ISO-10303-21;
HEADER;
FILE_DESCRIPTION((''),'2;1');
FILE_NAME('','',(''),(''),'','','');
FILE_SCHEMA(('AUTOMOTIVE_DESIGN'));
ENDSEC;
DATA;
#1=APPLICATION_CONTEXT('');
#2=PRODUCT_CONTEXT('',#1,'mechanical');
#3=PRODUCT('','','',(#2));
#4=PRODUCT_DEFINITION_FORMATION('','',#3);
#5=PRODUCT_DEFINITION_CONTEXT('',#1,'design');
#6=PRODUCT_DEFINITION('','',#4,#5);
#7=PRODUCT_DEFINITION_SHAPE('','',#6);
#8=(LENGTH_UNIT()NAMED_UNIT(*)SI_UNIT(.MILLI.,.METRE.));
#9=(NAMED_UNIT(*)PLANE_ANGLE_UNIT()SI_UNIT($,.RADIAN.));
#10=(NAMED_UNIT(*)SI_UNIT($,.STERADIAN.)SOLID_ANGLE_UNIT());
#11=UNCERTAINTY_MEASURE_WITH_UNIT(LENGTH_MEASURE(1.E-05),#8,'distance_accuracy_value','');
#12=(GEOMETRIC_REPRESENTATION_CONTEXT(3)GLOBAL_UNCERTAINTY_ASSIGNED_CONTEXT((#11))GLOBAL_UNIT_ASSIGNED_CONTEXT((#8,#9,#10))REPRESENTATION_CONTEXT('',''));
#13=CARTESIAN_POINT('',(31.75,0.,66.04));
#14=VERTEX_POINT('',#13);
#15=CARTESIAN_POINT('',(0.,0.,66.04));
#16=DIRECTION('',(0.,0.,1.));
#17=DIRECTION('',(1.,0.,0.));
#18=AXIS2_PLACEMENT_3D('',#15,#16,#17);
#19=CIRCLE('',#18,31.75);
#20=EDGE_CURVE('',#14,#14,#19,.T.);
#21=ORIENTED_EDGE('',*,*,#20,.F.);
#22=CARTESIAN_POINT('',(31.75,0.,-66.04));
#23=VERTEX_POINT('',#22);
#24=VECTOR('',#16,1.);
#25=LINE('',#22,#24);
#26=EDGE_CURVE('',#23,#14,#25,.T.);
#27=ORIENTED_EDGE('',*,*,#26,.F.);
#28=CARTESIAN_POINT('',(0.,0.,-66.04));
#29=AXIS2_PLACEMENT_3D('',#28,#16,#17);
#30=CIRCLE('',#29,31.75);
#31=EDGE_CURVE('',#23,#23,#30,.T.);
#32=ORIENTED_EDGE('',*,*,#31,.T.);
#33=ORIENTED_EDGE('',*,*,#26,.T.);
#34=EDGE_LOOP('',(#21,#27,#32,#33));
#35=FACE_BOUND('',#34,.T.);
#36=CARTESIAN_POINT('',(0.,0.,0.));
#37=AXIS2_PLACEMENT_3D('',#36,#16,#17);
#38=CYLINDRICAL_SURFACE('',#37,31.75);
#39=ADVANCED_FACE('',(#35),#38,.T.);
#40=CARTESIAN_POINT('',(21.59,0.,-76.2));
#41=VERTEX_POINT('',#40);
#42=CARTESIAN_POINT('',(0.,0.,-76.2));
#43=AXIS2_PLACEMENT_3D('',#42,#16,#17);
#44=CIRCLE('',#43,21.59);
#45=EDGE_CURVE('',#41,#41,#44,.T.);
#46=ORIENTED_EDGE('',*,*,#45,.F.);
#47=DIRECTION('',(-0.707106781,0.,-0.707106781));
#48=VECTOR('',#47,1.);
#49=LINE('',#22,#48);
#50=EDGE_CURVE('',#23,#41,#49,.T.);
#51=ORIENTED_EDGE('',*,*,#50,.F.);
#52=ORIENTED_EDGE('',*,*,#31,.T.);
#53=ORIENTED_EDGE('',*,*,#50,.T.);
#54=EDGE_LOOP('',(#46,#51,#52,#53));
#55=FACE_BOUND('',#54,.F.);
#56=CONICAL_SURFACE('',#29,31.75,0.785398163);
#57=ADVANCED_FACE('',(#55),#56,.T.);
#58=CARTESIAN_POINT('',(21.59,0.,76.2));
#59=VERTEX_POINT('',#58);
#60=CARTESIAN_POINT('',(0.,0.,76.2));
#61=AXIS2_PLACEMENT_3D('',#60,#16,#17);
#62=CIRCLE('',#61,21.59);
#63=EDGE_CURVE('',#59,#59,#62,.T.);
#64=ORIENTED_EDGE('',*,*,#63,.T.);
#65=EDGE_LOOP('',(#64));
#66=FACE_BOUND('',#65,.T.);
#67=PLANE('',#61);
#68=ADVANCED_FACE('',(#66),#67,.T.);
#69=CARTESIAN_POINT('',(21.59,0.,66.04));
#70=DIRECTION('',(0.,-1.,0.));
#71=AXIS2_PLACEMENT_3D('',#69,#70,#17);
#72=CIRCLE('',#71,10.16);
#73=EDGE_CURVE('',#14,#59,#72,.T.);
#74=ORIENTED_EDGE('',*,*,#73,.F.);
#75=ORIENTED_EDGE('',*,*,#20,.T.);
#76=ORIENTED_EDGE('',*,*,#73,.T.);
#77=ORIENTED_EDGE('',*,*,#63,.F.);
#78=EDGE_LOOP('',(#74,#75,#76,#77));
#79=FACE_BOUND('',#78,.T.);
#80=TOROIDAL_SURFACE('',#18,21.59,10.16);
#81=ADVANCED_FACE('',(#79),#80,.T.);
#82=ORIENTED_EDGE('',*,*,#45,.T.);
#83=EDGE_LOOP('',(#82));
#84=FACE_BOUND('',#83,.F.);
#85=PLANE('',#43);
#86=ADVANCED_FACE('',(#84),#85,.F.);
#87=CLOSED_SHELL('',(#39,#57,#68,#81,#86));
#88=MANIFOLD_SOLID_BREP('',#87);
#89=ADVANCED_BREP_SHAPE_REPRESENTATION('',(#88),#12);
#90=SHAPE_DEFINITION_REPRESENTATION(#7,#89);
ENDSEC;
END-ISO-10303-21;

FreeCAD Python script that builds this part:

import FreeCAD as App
import Part
import Sketcher
from FreeCAD import Vector
Q = App.Units.Quantity


def edges_at(feature, points):
    """Names of the edges that pass closest to the given points."""
    edges = feature.Shape.Edges
    near = lambda p: min(range(len(edges)), key=lambda i: edges[i].distToShape(Part.Vertex(*p))[0])
    return sorted({f"Edge{near(p) + 1}" for p in points})

doc = App.newDocument("Part")
body = doc.addObject("PartDesign::Body", "Body")

# Sketch on XY plane
sketch1 = doc.addObject("Sketcher::SketchObject", "Sketch")
body.addObject(sketch1)
sketch1.AttachmentSupport = (doc.XY_Plane, [""])
sketch1.MapMode = "FlatFace"
sketch1.addGeometry(Part.Circle(Vector(0, 0, 0), Vector(0, 0, 1), 32), False)
sketch1.addConstraint([
    Sketcher.Constraint("Coincident", 0, 3, -1, 1),
    Sketcher.Constraint("Diameter", 0, Q("2.5 in")),
])
pad1 = doc.addObject("PartDesign::Pad", "Pad")
body.addObject(pad1)
pad1.Profile = sketch1
pad1.Type = "TwoLengths"
pad1.Length = Q("3 in")
pad1.Length2 = Q("3 in")
pad1.Reversed = True
doc.recompute()

fillet = doc.addObject("PartDesign::Fillet", "Fillet")
body.addObject(fillet)
fillet.Base = (pad1, edges_at(pad1, [(-31.75, 0, 76.2)]))
fillet.Radius = Q("0.4 in")
doc.recompute()

chamfer = doc.addObject("PartDesign::Chamfer", "Chamfer")
body.addObject(chamfer)
chamfer.Base = (fillet, edges_at(fillet, [(-31.75, 0, -76.2)]))
chamfer.Size = Q("0.4 in")

doc.recompute()
